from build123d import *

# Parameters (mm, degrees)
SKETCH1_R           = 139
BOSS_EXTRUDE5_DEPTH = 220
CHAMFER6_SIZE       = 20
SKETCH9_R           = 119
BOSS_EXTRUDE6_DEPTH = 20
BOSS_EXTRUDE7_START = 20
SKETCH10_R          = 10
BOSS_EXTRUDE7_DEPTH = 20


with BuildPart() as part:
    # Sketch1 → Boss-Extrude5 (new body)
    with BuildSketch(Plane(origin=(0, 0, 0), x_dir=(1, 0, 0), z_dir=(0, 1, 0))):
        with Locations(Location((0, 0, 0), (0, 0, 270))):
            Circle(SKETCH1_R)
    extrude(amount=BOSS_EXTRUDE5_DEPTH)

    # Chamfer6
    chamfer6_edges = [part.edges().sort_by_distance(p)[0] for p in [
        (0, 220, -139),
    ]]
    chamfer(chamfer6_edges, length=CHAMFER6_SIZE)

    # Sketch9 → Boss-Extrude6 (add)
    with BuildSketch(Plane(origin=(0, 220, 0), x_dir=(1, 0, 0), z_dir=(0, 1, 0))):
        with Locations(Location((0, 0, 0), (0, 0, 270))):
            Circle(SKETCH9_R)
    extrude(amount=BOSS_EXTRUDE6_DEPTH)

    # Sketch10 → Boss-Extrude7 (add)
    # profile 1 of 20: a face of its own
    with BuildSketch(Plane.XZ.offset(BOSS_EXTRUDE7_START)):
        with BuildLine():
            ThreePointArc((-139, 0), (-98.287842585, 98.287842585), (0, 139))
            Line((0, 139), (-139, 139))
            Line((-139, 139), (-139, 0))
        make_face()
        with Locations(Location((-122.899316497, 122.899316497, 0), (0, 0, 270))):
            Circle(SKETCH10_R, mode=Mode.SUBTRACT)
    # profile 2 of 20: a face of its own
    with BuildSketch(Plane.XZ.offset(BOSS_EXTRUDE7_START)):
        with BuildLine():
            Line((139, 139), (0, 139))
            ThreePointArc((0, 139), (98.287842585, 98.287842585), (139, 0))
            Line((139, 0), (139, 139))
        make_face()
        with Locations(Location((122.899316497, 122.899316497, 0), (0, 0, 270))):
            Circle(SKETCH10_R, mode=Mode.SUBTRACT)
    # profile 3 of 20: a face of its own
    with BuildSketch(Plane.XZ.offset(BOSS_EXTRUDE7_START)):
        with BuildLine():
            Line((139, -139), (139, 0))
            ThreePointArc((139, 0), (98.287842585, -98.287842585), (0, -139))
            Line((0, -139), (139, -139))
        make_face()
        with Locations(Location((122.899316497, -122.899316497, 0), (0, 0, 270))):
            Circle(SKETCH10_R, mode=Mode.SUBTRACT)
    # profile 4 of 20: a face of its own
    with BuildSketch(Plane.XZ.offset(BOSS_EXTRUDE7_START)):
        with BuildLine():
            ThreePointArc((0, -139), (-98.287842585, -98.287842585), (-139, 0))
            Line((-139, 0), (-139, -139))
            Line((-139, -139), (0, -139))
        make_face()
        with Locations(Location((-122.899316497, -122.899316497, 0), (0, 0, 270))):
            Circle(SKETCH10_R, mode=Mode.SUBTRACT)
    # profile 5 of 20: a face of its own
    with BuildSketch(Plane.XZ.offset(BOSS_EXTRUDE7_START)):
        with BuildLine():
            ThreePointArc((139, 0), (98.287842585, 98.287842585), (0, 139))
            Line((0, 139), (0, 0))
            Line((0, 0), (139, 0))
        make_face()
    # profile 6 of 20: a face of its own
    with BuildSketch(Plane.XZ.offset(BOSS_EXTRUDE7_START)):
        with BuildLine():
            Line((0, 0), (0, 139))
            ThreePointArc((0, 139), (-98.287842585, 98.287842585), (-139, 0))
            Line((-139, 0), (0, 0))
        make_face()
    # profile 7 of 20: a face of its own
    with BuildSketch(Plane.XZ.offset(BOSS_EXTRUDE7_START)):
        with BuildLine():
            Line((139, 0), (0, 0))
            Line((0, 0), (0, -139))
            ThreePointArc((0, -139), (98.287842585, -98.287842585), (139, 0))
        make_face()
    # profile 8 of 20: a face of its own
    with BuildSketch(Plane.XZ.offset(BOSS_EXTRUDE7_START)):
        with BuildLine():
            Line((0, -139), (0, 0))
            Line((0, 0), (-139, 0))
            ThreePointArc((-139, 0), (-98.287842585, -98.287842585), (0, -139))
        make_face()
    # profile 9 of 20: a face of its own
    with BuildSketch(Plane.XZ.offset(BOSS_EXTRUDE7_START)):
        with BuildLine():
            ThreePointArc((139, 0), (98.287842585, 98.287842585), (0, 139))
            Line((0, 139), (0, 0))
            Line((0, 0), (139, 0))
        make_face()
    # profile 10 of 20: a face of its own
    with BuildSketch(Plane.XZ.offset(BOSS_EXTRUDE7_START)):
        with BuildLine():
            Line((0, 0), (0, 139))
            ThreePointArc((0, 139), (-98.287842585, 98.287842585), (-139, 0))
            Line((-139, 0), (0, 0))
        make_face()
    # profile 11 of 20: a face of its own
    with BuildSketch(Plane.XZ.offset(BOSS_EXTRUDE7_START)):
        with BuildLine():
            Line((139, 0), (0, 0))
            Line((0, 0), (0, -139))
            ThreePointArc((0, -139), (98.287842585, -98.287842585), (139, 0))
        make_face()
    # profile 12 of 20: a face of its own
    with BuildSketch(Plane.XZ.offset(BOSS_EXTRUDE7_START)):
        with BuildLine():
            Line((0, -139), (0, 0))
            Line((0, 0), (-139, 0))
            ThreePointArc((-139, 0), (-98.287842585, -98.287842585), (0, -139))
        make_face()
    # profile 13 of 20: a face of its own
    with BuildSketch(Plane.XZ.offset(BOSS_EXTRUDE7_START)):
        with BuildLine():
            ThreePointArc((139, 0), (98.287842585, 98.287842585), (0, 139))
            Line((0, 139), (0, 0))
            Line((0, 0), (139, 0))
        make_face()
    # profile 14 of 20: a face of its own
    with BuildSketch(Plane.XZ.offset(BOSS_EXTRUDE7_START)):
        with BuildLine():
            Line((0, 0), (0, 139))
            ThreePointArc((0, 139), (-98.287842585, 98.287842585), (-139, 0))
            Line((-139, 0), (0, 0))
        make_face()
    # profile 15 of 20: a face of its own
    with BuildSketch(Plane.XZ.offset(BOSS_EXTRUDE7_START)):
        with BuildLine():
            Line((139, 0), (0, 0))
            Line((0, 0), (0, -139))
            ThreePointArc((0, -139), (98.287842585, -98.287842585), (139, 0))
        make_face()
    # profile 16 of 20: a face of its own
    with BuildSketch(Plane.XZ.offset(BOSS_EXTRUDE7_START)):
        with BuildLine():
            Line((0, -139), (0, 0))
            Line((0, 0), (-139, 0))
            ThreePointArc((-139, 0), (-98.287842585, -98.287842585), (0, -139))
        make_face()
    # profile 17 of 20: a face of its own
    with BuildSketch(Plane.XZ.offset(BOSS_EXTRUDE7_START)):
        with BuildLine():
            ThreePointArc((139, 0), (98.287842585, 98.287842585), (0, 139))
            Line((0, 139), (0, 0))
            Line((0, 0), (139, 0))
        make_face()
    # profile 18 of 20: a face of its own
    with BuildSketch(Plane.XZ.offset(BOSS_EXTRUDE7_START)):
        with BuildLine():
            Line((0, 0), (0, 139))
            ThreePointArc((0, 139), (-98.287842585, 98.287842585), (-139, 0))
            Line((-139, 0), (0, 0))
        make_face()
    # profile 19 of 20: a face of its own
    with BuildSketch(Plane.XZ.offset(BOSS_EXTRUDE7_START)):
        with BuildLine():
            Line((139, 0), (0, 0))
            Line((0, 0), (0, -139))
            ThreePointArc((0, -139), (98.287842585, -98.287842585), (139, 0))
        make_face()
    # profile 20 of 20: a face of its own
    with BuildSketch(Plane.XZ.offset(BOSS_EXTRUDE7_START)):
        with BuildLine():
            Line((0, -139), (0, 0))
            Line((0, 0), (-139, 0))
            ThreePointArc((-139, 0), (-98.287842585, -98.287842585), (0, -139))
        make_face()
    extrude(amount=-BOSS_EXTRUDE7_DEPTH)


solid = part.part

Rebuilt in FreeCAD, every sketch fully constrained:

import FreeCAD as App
import Part
import Sketcher


def edges_at(feature, points):
    """Names of the edges that pass closest to the given points."""
    edges = feature.Shape.Edges
    near = lambda p: min(range(len(edges)), key=lambda i: edges[i].distToShape(Part.Vertex(*p))[0])
    return sorted({f"Edge{near(p) + 1}" for p in points})


def add_polygon(sketch, points):
    """Adds a closed chain of lines whose ends are joined by coincident constraints."""
    first, n = sketch.GeometryCount, len(points)
    for a, b in zip(points, points[1:] + points[:1]):
        sketch.addGeometry(Part.LineSegment(App.Vector(*a, 0), App.Vector(*b, 0)), False)
    for i in range(n):
        sketch.addConstraint(Sketcher.Constraint("Coincident", first + i, 2, first + (i + 1) % n, 1))

doc = App.newDocument("Part")
body = doc.addObject("PartDesign::Body", "Body")

# Sketch on XZ plane
sketch1 = body.newObject("Sketcher::SketchObject", "Sketch")
sketch1.AttachmentSupport = (doc.getObject("XZ_Plane"), [""])
sketch1.MapMode = "FlatFace"
sketch1.addGeometry(Part.Circle(App.Vector(0, 0, 0), App.Vector(0, 0, 1), 139), False)
sketch1.addConstraint([
    Sketcher.Constraint("Coincident", 0, 3, -1, 1),
    Sketcher.Constraint("Diameter", 0, 278.0),
])
pad1 = body.newObject("PartDesign::Pad", "Pad")
pad1.Profile = sketch1
pad1.Length = 220
pad1.Reversed = True
doc.recompute()

chamfer = body.newObject("PartDesign::Chamfer", "Chamfer")
chamfer.Base = (pad1, edges_at(pad1, [(0, 220, -139)]))
chamfer.Size = 20

# Sketch on XZ plane
sketch2 = body.newObject("Sketcher::SketchObject", "Sketch001")
sketch2.AttachmentSupport = (doc.getObject("XZ_Plane"), [""])
sketch2.MapMode = "FlatFace"
sketch2.AttachmentOffset = App.Placement(App.Vector(0, 0, -220), App.Rotation())
sketch2.addGeometry(Part.Circle(App.Vector(0, 0, 0), App.Vector(0, 0, 1), 119), False)
sketch2.addConstraint([
    Sketcher.Constraint("Coincident", 0, 3, -1, 1),
    Sketcher.Constraint("Diameter", 0, 238.0),
])
pad2 = body.newObject("PartDesign::Pad", "Pad001")
pad2.Profile = sketch2
pad2.Length = 20
pad2.Reversed = True

# Sketch on XZ plane
sketch3 = body.newObject("Sketcher::SketchObject", "Sketch002")
sketch3.AttachmentSupport = (doc.getObject("XZ_Plane"), [""])
sketch3.MapMode = "FlatFace"
sketch3.AttachmentOffset = App.Placement(App.Vector(0, 0, 20), App.Rotation())
add_polygon(sketch3, [(-139, 139), (-139, -139), (139, -139), (139, 139)])  # lines 0-3
sketch3.addGeometry(Part.Circle(App.Vector(-123, 123, 0), App.Vector(0, 0, 1), 10), False)  # 4
sketch3.addGeometry(Part.Circle(App.Vector(123, 123, 0), App.Vector(0, 0, 1), 10), False)  # 5
sketch3.addGeometry(Part.Circle(App.Vector(-123, -123, 0), App.Vector(0, 0, 1), 10), False)  # 6
sketch3.addGeometry(Part.Circle(App.Vector(123, -123, 0), App.Vector(0, 0, 1), 10), False)  # 7
sketch3.addConstraint([
    Sketcher.Constraint("Vertical", 0),
    Sketcher.Constraint("Horizontal", 1),
    Sketcher.Constraint("Vertical", 2),
    Sketcher.Constraint("Horizontal", 3),
    Sketcher.Constraint("Equal", 4, 5),
    Sketcher.Constraint("Equal", 5, 6),
    Sketcher.Constraint("Equal", 6, 7),
    Sketcher.Constraint("Symmetric", 5, 3, 6, 3, -1, 1),
    Sketcher.Constraint("Symmetric", 4, 3, 7, 3, -1, 1),
    Sketcher.Constraint("Symmetric", 0, 2, 2, 2, -1, 1),
    Sketcher.Constraint("Symmetric", 4, 3, 5, 3, -2),
    Sketcher.Constraint("Equal", 3, 0),
    Sketcher.Constraint("Diameter", 4, 20.0),
    Sketcher.Constraint("DistanceX", 1, 1, 1, 2, 278.0),
    Sketcher.Constraint("DistanceX", 4, 3, -1, 1, 122.899316),
    Sketcher.Constraint("DistanceY", -1, 1, 4, 3, 122.899316),
])
pad3 = body.newObject("PartDesign::Pad", "Pad002")
pad3.Profile = sketch3
pad3.Length = 20
pad3.Reversed = True

doc.recompute()
